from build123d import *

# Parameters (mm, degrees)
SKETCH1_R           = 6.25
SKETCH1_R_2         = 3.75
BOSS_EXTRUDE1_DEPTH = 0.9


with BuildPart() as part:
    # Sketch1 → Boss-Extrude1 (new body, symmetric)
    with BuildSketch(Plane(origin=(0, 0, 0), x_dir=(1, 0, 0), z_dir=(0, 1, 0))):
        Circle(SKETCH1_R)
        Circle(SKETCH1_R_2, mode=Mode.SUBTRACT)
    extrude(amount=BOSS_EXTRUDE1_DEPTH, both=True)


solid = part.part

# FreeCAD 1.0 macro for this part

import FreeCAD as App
import Part
import Sketcher
from FreeCAD import Vector

doc = App.newDocument("Part")
body = doc.addObject("PartDesign::Body", "Body")

# Sketch on XZ plane
sketch1 = body.newObject("Sketcher::SketchObject", "Sketch")
sketch1.AttachmentSupport = (doc.getObject("XZ_Plane"), [""])
sketch1.MapMode = "FlatFace"
sketch1.addGeometry(Part.Circle(Vector(0, 0, 0), Vector(0, 0, 1), 6.2), False)
sketch1.addGeometry(Part.Circle(Vector(0, 0, 0), Vector(0, 0, 1), 3.8), False)
sketch1.addConstraint(Sketcher.Constraint("Coincident", 0, 3, -1, 1))
sketch1.addConstraint(Sketcher.Constraint("Coincident", 1, 3, -1, 1))
sketch1.addConstraint(Sketcher.Constraint("Diameter", 0, 12.5))
sketch1.addConstraint(Sketcher.Constraint("Diameter", 1, 7.5))
pad1 = body.newObject("PartDesign::Pad", "Pad")
pad1.Profile = sketch1
pad1.Length = 1.8
pad1.Midplane = True

doc.recompute()
